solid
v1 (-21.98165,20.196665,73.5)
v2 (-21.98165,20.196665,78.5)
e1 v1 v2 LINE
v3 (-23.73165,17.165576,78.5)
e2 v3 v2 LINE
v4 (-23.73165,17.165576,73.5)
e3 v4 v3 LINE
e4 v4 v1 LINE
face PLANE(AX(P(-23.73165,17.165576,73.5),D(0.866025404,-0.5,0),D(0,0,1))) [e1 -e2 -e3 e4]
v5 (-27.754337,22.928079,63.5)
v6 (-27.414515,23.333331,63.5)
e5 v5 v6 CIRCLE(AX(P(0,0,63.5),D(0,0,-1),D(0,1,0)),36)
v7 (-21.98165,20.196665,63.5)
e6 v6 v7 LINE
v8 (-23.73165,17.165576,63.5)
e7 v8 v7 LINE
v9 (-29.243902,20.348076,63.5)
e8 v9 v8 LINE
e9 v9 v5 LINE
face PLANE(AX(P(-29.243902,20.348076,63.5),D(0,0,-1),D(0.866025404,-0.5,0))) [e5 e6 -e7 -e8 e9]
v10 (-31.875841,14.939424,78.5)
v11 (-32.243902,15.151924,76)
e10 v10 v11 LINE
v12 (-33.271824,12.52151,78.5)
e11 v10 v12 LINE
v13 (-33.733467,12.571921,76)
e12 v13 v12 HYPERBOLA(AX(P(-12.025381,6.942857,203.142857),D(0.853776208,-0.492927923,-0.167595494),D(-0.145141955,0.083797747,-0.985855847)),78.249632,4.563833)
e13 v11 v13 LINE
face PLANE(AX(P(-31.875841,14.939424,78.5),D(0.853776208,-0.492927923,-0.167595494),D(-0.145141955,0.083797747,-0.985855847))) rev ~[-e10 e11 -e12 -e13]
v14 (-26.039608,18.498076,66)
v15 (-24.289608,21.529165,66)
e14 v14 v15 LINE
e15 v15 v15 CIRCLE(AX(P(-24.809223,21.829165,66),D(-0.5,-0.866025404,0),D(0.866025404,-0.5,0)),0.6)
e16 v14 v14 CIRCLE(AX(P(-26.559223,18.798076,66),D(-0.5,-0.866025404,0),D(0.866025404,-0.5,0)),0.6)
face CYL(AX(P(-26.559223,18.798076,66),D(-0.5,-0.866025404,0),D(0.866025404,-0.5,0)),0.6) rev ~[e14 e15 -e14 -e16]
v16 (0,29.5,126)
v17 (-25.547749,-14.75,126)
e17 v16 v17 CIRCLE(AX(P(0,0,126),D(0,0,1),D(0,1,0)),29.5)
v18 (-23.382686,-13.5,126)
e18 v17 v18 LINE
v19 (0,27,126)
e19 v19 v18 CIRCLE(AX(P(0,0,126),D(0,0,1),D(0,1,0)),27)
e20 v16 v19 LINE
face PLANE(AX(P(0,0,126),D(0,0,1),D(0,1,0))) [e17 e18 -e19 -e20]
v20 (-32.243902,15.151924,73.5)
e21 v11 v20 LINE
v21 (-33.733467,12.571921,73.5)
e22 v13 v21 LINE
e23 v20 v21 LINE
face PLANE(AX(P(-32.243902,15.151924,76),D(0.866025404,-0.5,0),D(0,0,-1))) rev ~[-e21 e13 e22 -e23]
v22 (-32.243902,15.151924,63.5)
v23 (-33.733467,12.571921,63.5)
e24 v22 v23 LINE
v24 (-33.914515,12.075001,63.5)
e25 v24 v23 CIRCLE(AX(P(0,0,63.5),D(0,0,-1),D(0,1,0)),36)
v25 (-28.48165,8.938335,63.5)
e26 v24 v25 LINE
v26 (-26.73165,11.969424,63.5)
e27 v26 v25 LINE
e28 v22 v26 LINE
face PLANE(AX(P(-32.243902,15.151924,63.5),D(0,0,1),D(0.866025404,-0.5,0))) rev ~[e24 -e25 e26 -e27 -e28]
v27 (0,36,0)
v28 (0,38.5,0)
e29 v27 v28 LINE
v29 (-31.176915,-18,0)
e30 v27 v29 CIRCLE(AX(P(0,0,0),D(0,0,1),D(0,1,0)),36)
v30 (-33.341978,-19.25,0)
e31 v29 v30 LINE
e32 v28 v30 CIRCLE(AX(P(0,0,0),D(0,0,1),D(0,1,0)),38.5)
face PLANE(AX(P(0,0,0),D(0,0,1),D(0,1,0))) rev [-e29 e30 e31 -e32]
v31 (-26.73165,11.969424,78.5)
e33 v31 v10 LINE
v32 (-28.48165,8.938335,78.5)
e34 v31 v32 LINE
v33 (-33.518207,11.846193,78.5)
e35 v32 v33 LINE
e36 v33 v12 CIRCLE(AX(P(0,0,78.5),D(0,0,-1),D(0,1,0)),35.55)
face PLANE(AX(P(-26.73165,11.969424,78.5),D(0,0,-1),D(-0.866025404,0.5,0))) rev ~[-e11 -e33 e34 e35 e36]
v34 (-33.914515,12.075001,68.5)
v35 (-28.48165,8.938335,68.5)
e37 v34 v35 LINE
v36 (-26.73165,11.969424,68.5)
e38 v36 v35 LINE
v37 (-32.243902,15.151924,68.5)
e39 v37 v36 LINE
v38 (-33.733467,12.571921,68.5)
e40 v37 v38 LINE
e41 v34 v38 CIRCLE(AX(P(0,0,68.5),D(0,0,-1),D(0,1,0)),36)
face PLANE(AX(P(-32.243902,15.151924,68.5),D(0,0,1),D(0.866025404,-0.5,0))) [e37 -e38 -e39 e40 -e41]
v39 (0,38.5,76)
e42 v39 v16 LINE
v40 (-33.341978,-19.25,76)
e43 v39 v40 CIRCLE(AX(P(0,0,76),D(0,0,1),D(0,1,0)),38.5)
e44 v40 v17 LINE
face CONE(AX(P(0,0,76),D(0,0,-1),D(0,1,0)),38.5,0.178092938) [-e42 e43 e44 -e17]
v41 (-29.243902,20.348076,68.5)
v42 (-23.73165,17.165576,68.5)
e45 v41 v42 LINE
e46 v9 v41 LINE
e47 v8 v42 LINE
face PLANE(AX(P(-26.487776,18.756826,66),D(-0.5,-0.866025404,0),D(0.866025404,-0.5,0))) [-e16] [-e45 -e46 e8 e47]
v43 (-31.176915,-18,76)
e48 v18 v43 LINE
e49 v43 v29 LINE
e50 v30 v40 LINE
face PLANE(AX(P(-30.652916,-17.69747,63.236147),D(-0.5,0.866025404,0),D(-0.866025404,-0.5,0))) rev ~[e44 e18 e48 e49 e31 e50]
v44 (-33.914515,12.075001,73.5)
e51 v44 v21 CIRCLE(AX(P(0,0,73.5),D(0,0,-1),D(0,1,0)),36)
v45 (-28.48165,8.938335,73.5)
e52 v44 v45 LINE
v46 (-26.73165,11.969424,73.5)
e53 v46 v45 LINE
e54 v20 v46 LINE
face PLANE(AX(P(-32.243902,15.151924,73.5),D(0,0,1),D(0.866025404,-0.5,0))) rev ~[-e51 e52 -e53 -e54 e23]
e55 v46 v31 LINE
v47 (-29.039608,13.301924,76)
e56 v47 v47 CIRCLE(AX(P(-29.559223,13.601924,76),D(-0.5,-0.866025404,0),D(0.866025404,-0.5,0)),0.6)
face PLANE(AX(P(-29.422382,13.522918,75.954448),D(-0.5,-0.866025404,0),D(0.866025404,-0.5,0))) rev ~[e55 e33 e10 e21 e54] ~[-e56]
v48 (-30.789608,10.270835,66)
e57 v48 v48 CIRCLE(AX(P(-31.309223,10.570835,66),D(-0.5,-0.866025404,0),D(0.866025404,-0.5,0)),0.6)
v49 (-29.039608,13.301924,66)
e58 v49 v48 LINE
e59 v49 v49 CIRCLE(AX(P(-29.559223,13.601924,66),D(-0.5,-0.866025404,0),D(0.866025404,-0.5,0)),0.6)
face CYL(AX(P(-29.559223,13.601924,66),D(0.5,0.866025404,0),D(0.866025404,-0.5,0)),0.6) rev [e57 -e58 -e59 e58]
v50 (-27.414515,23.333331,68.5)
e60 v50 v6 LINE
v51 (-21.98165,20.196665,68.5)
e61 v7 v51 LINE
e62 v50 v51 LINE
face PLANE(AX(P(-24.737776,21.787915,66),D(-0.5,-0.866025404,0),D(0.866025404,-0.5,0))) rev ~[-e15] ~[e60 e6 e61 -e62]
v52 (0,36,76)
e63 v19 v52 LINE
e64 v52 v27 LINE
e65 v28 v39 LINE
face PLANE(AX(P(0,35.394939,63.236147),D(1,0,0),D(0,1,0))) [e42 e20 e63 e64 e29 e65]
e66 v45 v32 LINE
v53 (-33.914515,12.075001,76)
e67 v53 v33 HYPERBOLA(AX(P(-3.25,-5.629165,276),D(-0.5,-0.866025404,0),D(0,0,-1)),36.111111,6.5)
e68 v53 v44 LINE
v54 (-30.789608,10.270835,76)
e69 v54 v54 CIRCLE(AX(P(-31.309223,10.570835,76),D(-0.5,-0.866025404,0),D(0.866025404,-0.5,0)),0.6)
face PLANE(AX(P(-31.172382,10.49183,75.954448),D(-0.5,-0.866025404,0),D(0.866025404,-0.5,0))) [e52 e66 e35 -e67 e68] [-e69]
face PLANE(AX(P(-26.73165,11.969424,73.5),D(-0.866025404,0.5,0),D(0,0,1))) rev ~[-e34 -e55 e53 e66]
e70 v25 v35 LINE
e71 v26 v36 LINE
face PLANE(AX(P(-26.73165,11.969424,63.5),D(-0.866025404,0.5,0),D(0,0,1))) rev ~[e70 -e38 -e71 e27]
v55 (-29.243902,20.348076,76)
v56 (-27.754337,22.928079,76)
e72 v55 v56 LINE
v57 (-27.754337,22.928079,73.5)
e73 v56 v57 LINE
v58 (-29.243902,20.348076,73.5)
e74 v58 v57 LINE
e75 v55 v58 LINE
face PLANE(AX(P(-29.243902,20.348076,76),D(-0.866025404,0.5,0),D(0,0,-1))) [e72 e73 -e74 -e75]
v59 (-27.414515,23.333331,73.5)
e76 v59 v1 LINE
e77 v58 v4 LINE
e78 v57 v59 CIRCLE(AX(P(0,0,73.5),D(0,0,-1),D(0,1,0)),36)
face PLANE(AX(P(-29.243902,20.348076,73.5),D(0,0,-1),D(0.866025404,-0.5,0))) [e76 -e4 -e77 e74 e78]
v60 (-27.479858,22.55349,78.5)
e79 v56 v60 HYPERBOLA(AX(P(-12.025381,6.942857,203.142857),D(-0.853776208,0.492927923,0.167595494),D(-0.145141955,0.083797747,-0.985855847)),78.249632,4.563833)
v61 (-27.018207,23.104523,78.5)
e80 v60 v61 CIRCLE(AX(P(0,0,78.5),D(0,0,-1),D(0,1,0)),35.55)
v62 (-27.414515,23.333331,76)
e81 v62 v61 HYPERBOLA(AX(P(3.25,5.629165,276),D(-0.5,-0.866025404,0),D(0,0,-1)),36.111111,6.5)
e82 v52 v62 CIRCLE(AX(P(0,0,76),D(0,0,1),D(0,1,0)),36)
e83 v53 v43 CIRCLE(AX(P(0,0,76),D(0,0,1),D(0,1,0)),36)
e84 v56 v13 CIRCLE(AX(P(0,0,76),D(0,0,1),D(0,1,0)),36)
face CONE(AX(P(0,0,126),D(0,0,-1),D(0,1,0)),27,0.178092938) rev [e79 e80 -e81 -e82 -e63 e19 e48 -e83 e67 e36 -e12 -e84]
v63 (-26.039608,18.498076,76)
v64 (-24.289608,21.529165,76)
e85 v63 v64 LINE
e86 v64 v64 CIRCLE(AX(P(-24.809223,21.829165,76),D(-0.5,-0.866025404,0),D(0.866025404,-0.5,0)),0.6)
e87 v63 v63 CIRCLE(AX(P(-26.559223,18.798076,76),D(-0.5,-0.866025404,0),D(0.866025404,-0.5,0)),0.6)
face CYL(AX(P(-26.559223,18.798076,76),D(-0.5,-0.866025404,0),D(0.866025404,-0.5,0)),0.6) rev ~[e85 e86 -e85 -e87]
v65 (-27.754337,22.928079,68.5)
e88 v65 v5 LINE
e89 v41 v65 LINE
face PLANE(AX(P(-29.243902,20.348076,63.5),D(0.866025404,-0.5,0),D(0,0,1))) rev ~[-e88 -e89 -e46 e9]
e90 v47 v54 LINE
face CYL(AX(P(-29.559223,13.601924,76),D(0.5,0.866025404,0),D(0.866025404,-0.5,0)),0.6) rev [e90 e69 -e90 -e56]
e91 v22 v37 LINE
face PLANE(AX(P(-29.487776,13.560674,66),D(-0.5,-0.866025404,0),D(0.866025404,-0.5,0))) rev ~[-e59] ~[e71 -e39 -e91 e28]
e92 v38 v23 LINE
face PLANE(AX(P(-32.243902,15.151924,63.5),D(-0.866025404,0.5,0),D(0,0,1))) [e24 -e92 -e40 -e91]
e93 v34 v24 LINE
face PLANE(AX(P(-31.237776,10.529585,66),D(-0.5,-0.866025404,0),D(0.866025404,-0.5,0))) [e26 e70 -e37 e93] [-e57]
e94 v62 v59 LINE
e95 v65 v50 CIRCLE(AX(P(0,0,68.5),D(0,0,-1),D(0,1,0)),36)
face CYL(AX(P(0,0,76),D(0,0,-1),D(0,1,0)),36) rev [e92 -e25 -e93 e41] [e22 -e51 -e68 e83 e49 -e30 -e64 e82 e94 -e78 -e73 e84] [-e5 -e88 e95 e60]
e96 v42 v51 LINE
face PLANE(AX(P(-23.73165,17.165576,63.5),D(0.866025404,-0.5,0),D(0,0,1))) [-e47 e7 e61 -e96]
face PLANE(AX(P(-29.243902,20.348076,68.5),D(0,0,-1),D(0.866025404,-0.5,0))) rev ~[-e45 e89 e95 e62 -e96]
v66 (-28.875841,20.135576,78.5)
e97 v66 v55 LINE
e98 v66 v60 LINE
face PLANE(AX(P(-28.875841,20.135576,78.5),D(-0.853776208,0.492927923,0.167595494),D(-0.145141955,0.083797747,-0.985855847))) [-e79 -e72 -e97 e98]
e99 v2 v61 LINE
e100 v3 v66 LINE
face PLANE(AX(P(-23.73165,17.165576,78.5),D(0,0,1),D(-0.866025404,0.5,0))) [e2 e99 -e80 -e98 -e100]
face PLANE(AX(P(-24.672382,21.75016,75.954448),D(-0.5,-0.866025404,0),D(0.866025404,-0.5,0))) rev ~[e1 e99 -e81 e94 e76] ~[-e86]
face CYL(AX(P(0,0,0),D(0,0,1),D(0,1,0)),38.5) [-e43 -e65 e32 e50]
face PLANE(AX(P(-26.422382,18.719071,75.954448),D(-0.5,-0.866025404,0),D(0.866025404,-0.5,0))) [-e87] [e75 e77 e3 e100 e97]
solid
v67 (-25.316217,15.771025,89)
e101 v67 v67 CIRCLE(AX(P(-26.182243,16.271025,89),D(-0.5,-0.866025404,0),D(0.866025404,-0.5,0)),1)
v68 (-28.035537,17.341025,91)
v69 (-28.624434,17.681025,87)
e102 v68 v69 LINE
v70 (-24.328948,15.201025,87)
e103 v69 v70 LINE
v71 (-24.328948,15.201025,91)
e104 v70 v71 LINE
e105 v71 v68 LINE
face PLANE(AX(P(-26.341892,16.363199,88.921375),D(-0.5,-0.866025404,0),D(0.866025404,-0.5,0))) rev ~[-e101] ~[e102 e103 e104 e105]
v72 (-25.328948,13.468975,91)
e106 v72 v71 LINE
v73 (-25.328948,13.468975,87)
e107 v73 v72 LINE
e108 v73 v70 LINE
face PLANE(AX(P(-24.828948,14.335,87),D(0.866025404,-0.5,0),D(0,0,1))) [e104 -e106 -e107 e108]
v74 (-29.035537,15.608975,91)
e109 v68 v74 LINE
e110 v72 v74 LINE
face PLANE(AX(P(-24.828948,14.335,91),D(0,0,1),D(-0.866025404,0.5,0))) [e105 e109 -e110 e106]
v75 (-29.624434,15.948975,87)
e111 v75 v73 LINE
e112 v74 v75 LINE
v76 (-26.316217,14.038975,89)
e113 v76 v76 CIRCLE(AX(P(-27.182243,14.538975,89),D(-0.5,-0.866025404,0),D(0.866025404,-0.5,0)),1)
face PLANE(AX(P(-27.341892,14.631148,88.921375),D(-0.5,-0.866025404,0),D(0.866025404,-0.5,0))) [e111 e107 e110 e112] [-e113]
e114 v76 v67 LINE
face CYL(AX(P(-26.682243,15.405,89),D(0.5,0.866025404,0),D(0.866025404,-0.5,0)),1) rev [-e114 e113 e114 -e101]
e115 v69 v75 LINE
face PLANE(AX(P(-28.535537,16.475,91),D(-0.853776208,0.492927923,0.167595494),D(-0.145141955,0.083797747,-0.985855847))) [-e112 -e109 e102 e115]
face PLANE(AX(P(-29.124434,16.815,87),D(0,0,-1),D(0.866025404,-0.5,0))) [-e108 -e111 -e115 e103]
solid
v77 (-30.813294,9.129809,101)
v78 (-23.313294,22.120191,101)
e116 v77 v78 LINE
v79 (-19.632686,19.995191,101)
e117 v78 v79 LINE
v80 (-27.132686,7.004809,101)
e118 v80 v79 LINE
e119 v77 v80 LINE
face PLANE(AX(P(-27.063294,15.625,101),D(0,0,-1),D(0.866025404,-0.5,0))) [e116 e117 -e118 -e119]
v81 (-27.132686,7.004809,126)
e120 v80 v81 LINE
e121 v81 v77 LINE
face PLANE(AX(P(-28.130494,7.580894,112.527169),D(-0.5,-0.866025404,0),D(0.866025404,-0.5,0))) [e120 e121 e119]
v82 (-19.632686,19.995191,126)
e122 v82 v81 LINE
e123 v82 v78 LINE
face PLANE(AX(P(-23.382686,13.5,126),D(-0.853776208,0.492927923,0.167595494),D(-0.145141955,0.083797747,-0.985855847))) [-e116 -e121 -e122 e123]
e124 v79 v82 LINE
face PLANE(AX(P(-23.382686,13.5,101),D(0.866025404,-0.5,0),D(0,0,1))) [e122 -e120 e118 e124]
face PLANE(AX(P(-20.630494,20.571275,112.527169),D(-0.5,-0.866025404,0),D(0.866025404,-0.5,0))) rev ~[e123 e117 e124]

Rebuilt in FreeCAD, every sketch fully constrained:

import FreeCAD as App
import Part
import Sketcher
from FreeCAD import Vector

doc = App.newDocument("Part")
body = doc.addObject("PartDesign::Body", "Body")

# Sketch on YZ plane
sketch1 = body.newObject("Sketcher::SketchObject", "Sketch")
sketch1.AttachmentSupport = (doc.getObject("YZ_Plane"), [""])
sketch1.MapMode = "FlatFace"
sketch1.addGeometry([
    Part.LineSegment(Vector(38.5, 76, 0), Vector(29.5, 126, 0)),  # 0
    Part.LineSegment(Vector(29.5, 126, 0), Vector(27, 126, 0)),  # 1
    Part.LineSegment(Vector(27, 126, 0), Vector(36, 76, 0)),  # 2
    Part.LineSegment(Vector(36, 76, 0), Vector(36, 0, 0)),  # 3
    Part.LineSegment(Vector(36, 0, 0), Vector(38.5, 0, 0)),  # 4
    Part.LineSegment(Vector(38.5, 0, 0), Vector(38.5, 76, 0)),  # 5
], False)
sketch1.addConstraint([
    Sketcher.Constraint("Coincident", 0, 2, 1, 1),
    Sketcher.Constraint("Coincident", 1, 2, 2, 1),
    Sketcher.Constraint("Coincident", 2, 2, 3, 1),
    Sketcher.Constraint("Coincident", 3, 2, 4, 1),
    Sketcher.Constraint("Coincident", 4, 2, 5, 1),
    Sketcher.Constraint("Coincident", 5, 2, 0, 1),
    Sketcher.Constraint("Horizontal", 1),
    Sketcher.Constraint("Vertical", 3),
    Sketcher.Constraint("Horizontal", 4),
    Sketcher.Constraint("Vertical", 5),
    Sketcher.Constraint("PointOnObject", 3, 2, -1),
    Sketcher.Constraint("Parallel", 0, 2),
    Sketcher.Constraint("Horizontal", 2, 2, 5, 2),
    Sketcher.Constraint("DistanceY", 3, 2, 3, 1, 76.0),
    Sketcher.Constraint("DistanceX", 1, 2, 1, 1, 2.5),
    Sketcher.Constraint("DistanceY", -1, 1, 0, 2, 126.0),
    Sketcher.Constraint("DistanceX", -1, 1, 1, 2, 27.0),
    Sketcher.Constraint("DistanceX", -1, 1, 2, 2, 36.0),
])
revolution = body.newObject("PartDesign::Revolution", "Revolution")
revolution.Profile = sketch1
revolution.ReferenceAxis = (sketch1, ["V_Axis"])
revolution.Angle = 120

# Sketch on an angled plane
sketch2 = body.newObject("Sketcher::SketchObject", "Sketch001")
sketch2.Placement = App.Placement(Vector(1.5, 2.598076, 0), App.Rotation(Vector(0.866025404, -0.5, 0), Vector(0, 0, 1), Vector(-0.5, -0.866025404, 0), "ZXY"))
sketch2.addGeometry([
    Part.LineSegment(Vector(-35.5, 73.5, 0), Vector(-29.1, 73.5, 0)),  # 0
    Part.LineSegment(Vector(-29.1, 73.5, 0), Vector(-29.1, 78.5, 0)),  # 1
    Part.LineSegment(Vector(-29.1, 78.5, 0), Vector(-35.1, 78.5, 0)),  # 2
    Part.LineSegment(Vector(-35.1, 78.5, 0), Vector(-35.5, 76, 0)),  # 3
    Part.LineSegment(Vector(-35.5, 76, 0), Vector(-35.5, 73.5, 0)),  # 4
    Part.Circle(Vector(-32.4, 76, 0), Vector(0, 0, 1), 0.6),  # 5
    Part.LineSegment(Vector(-35.5, 68.5, 0), Vector(-35.5, 63.5, 0)),  # 6
    Part.LineSegment(Vector(-35.5, 63.5, 0), Vector(-29.1, 63.5, 0)),  # 7
    Part.LineSegment(Vector(-29.1, 63.5, 0), Vector(-29.1, 68.5, 0)),  # 8
    Part.LineSegment(Vector(-29.1, 68.5, 0), Vector(-35.5, 68.5, 0)),  # 9
    Part.Circle(Vector(-32.4, 66, 0), Vector(0, 0, 1), 0.6),  # 10
], False)
sketch2.addConstraint([
    Sketcher.Constraint("Coincident", 0, 2, 1, 1),
    Sketcher.Constraint("Coincident", 1, 2, 2, 1),
    Sketcher.Constraint("Coincident", 2, 2, 3, 1),
    Sketcher.Constraint("Coincident", 3, 2, 4, 1),
    Sketcher.Constraint("Coincident", 4, 2, 0, 1),
    Sketcher.Constraint("Coincident", 6, 2, 7, 1),
    Sketcher.Constraint("Coincident", 7, 2, 8, 1),
    Sketcher.Constraint("Coincident", 8, 2, 9, 1),
    Sketcher.Constraint("Coincident", 9, 2, 6, 1),
    Sketcher.Constraint("Horizontal", 0),
    Sketcher.Constraint("Vertical", 1),
    Sketcher.Constraint("Horizontal", 2),
    Sketcher.Constraint("Vertical", 4),
    Sketcher.Constraint("Vertical", 6),
    Sketcher.Constraint("Horizontal", 7),
    Sketcher.Constraint("Vertical", 8),
    Sketcher.Constraint("Horizontal", 9),
    Sketcher.Constraint("Equal", 5, 10),
    Sketcher.Constraint("Horizontal", 5, 3, 3, 2),
    Sketcher.Constraint("Vertical", 5, 3, 10, 3),
    Sketcher.Constraint("Vertical", 4, 2, 6, 2),
    Sketcher.Constraint("Vertical", 1, 2, 7, 2),
    Sketcher.Constraint("Equal", 1, 6),
    Sketcher.Constraint("Diameter", 5, 1.2),
    Sketcher.Constraint("DistanceY", 1, 1, 1, 2, 5.0),
    Sketcher.Constraint("DistanceY", 4, 2, 4, 1, 2.5),
    Sketcher.Constraint("DistanceY", -1, 1, 5, 3, 76.0),
    Sketcher.Constraint("DistanceY", -1, 1, 10, 3, 66.0),
    Sketcher.Constraint("DistanceY", 6, 2, 4, 2, 10.0),
    Sketcher.Constraint("DistanceX", 2, 2, 2, 1, 5.94),
    Sketcher.Constraint("DistanceX", 5, 3, -1, 1, 32.4),
    Sketcher.Constraint("DistanceX", 3, 2, -1, 1, 35.5),
    Sketcher.Constraint("DistanceX", 0, 1, 0, 2, 6.365),
])
pad1 = body.newObject("PartDesign::Pad", "Pad")
pad1.Profile = sketch2
pad1.Length = 3.5
pad1.Reversed = True

# Sketch on an angled plane
sketch3 = body.newObject("Sketcher::SketchObject", "Sketch002")
sketch3.Placement = App.Placement(Vector(-1.5, -2.598076, 0), App.Rotation(Vector(0.866025404, -0.5, 0), Vector(0, 0, 1), Vector(-0.5, -0.866025404, 0), "ZXY"))
sketch3.addGeometry([
    Part.LineSegment(Vector(-35.5, 73.5, 0), Vector(-29.1, 73.5, 0)),  # 0
    Part.LineSegment(Vector(-29.1, 73.5, 0), Vector(-29.1, 78.5, 0)),  # 1
    Part.LineSegment(Vector(-29.1, 78.5, 0), Vector(-35.1, 78.5, 0)),  # 2
    Part.LineSegment(Vector(-35.1, 78.5, 0), Vector(-35.5, 76, 0)),  # 3
    Part.LineSegment(Vector(-35.5, 76, 0), Vector(-35.5, 73.5, 0)),  # 4
    Part.Circle(Vector(-32.4, 76, 0), Vector(0, 0, 1), 0.6),  # 5
    Part.LineSegment(Vector(-35.5, 68.5, 0), Vector(-35.5, 63.5, 0)),  # 6
    Part.LineSegment(Vector(-35.5, 63.5, 0), Vector(-29.1, 63.5, 0)),  # 7
    Part.LineSegment(Vector(-29.1, 63.5, 0), Vector(-29.1, 68.5, 0)),  # 8
    Part.LineSegment(Vector(-29.1, 68.5, 0), Vector(-35.5, 68.5, 0)),  # 9
    Part.Circle(Vector(-32.4, 66, 0), Vector(0, 0, 1), 0.6),  # 10
], False)
sketch3.addConstraint([
    Sketcher.Constraint("Coincident", 0, 2, 1, 1),
    Sketcher.Constraint("Coincident", 1, 2, 2, 1),
    Sketcher.Constraint("Coincident", 2, 2, 3, 1),
    Sketcher.Constraint("Coincident", 3, 2, 4, 1),
    Sketcher.Constraint("Coincident", 4, 2, 0, 1),
    Sketcher.Constraint("Coincident", 6, 2, 7, 1),
    Sketcher.Constraint("Coincident", 7, 2, 8, 1),
    Sketcher.Constraint("Coincident", 8, 2, 9, 1),
    Sketcher.Constraint("Coincident", 9, 2, 6, 1),
    Sketcher.Constraint("Horizontal", 0),
    Sketcher.Constraint("Vertical", 1),
    Sketcher.Constraint("Horizontal", 2),
    Sketcher.Constraint("Vertical", 4),
    Sketcher.Constraint("Vertical", 6),
    Sketcher.Constraint("Horizontal", 7),
    Sketcher.Constraint("Vertical", 8),
    Sketcher.Constraint("Horizontal", 9),
    Sketcher.Constraint("Equal", 5, 10),
    Sketcher.Constraint("Horizontal", 5, 3, 3, 2),
    Sketcher.Constraint("Vertical", 5, 3, 10, 3),
    Sketcher.Constraint("Vertical", 4, 2, 6, 2),
    Sketcher.Constraint("Vertical", 1, 2, 7, 2),
    Sketcher.Constraint("Equal", 1, 6),
    Sketcher.Constraint("Diameter", 5, 1.2),
    Sketcher.Constraint("DistanceY", 1, 1, 1, 2, 5.0),
    Sketcher.Constraint("DistanceY", 4, 2, 4, 1, 2.5),
    Sketcher.Constraint("DistanceY", -1, 1, 5, 3, 76.0),
    Sketcher.Constraint("DistanceY", -1, 1, 10, 3, 66.0),
    Sketcher.Constraint("DistanceY", 6, 2, 4, 2, 10.0),
    Sketcher.Constraint("DistanceX", 2, 2, 2, 1, 5.94),
    Sketcher.Constraint("DistanceX", 5, 3, -1, 1, 32.4),
    Sketcher.Constraint("DistanceX", 3, 2, -1, 1, 35.5),
    Sketcher.Constraint("DistanceX", 0, 1, 0, 2, 6.365),
])
pad2 = body.newObject("PartDesign::Pad", "Pad001")
pad2.Profile = sketch3
pad2.Length = 3.5
body2 = doc.addObject("PartDesign::Body", "Body001")

# Sketch on an angled plane
sketch4 = body2.newObject("Sketcher::SketchObject", "Sketch003")
sketch4.Placement = App.Placement(Vector(0, 0, 0), App.Rotation(Vector(0.866025404, -0.5, 0), Vector(0, 0, 1), Vector(-0.5, -0.866025404, 0), "ZXY"))
sketch4.addGeometry([
    Part.LineSegment(Vector(-27, 101, 0), Vector(-27, 126, 0)),
    Part.LineSegment(Vector(-27, 126, 0), Vector(-31.3, 101, 0)),
    Part.LineSegment(Vector(-31.3, 101, 0), Vector(-27, 101, 0)),
], False)
sketch4.addConstraint([
    Sketcher.Constraint("Coincident", 0, 2, 1, 1),
    Sketcher.Constraint("Coincident", 1, 2, 2, 1),
    Sketcher.Constraint("Coincident", 2, 2, 0, 1),
    Sketcher.Constraint("Vertical", 0),
    Sketcher.Constraint("Horizontal", 2),
    Sketcher.Constraint("DistanceY", 0, 1, 0, 2, 25.0),
    Sketcher.Constraint("DistanceX", 0, 2, -1, 1, 27.0),
    Sketcher.Constraint("DistanceY", -1, 1, 0, 2, 126.0),
    Sketcher.Constraint("DistanceX", 2, 1, 2, 2, 4.25),
])
pad3 = body2.newObject("PartDesign::Pad", "Pad002")
pad3.Profile = sketch4
pad3.Length = 15
pad3.Midplane = True
body3 = doc.addObject("PartDesign::Body", "Body002")

# Sketch on an angled plane
sketch5 = body3.newObject("Sketcher::SketchObject", "Sketch004")
sketch5.Placement = App.Placement(Vector(0, 0, 0), App.Rotation(Vector(0.866025404, -0.5, 0), Vector(0, 0, 1), Vector(-0.5, -0.866025404, 0), "ZXY"))
sketch5.addGeometry([
    Part.LineSegment(Vector(-27, 101, 0), Vector(-27, 126, 0)),
    Part.LineSegment(Vector(-27, 126, 0), Vector(-31.3, 101, 0)),
    Part.LineSegment(Vector(-31.3, 101, 0), Vector(-27, 101, 0)),
], False)
sketch5.addConstraint([
    Sketcher.Constraint("Coincident", 0, 2, 1, 1),
    Sketcher.Constraint("Coincident", 1, 2, 2, 1),
    Sketcher.Constraint("Coincident", 2, 2, 0, 1),
    Sketcher.Constraint("Vertical", 0),
    Sketcher.Constraint("Horizontal", 2),
    Sketcher.Constraint("DistanceY", 0, 1, 0, 2, 25.0),
    Sketcher.Constraint("DistanceX", 0, 2, -1, 1, 27.0),
    Sketcher.Constraint("DistanceY", -1, 1, 0, 2, 126.0),
    Sketcher.Constraint("DistanceX", 2, 1, 2, 2, 4.25),
])
pad4 = body3.newObject("PartDesign::Pad", "Pad003")
pad4.Profile = sketch5
pad4.Length = 15
pad4.Midplane = True
body4 = doc.addObject("PartDesign::Body", "Body003")

# Sketch on an angled plane
sketch6 = body4.newObject("Sketcher::SketchObject", "Sketch005")
sketch6.Placement = App.Placement(Vector(0, 0, 0), App.Rotation(Vector(0.866025404, -0.5, 0), Vector(0, 0, 1), Vector(-0.5, -0.866025404, 0), "ZXY"))
sketch6.addGeometry([
    Part.LineSegment(Vector(-28.7, 91, 0), Vector(-33, 91, 0)),  # 0
    Part.LineSegment(Vector(-33, 91, 0), Vector(-33.6, 87, 0)),  # 1
    Part.LineSegment(Vector(-33.6, 87, 0), Vector(-28.7, 87, 0)),  # 2
    Part.LineSegment(Vector(-28.7, 87, 0), Vector(-28.7, 91, 0)),  # 3
    Part.Circle(Vector(-30.8, 89, 0), Vector(0, 0, 1), 1),  # 4
], False)
sketch6.addConstraint([
    Sketcher.Constraint("Coincident", 0, 2, 1, 1),
    Sketcher.Constraint("Coincident", 1, 2, 2, 1),
    Sketcher.Constraint("Coincident", 2, 2, 3, 1),
    Sketcher.Constraint("Coincident", 3, 2, 0, 1),
    Sketcher.Constraint("Horizontal", 0),
    Sketcher.Constraint("Horizontal", 2),
    Sketcher.Constraint("Vertical", 3),
    Sketcher.Constraint("Diameter", 4, 2.0),
    Sketcher.Constraint("DistanceY", 3, 1, 3, 2, 4.0),
    Sketcher.Constraint("DistanceY", -1, 1, 4, 3, 89.0),
    Sketcher.Constraint("DistanceY", -1, 1, 0, 2, 91.0),
    Sketcher.Constraint("DistanceX", 0, 2, 0, 1, 4.28),
    Sketcher.Constraint("DistanceX", 2, 1, 2, 2, 4.96),
    Sketcher.Constraint("DistanceX", 4, 3, -1, 1, 30.81),
    Sketcher.Constraint("DistanceX", 0, 2, -1, 1, 32.95),
])
pad5 = body4.newObject("PartDesign::Pad", "Pad004")
pad5.Profile = sketch6
pad5.Length = 2
pad5.Midplane = True
body2.Visibility = False

doc.recompute()
